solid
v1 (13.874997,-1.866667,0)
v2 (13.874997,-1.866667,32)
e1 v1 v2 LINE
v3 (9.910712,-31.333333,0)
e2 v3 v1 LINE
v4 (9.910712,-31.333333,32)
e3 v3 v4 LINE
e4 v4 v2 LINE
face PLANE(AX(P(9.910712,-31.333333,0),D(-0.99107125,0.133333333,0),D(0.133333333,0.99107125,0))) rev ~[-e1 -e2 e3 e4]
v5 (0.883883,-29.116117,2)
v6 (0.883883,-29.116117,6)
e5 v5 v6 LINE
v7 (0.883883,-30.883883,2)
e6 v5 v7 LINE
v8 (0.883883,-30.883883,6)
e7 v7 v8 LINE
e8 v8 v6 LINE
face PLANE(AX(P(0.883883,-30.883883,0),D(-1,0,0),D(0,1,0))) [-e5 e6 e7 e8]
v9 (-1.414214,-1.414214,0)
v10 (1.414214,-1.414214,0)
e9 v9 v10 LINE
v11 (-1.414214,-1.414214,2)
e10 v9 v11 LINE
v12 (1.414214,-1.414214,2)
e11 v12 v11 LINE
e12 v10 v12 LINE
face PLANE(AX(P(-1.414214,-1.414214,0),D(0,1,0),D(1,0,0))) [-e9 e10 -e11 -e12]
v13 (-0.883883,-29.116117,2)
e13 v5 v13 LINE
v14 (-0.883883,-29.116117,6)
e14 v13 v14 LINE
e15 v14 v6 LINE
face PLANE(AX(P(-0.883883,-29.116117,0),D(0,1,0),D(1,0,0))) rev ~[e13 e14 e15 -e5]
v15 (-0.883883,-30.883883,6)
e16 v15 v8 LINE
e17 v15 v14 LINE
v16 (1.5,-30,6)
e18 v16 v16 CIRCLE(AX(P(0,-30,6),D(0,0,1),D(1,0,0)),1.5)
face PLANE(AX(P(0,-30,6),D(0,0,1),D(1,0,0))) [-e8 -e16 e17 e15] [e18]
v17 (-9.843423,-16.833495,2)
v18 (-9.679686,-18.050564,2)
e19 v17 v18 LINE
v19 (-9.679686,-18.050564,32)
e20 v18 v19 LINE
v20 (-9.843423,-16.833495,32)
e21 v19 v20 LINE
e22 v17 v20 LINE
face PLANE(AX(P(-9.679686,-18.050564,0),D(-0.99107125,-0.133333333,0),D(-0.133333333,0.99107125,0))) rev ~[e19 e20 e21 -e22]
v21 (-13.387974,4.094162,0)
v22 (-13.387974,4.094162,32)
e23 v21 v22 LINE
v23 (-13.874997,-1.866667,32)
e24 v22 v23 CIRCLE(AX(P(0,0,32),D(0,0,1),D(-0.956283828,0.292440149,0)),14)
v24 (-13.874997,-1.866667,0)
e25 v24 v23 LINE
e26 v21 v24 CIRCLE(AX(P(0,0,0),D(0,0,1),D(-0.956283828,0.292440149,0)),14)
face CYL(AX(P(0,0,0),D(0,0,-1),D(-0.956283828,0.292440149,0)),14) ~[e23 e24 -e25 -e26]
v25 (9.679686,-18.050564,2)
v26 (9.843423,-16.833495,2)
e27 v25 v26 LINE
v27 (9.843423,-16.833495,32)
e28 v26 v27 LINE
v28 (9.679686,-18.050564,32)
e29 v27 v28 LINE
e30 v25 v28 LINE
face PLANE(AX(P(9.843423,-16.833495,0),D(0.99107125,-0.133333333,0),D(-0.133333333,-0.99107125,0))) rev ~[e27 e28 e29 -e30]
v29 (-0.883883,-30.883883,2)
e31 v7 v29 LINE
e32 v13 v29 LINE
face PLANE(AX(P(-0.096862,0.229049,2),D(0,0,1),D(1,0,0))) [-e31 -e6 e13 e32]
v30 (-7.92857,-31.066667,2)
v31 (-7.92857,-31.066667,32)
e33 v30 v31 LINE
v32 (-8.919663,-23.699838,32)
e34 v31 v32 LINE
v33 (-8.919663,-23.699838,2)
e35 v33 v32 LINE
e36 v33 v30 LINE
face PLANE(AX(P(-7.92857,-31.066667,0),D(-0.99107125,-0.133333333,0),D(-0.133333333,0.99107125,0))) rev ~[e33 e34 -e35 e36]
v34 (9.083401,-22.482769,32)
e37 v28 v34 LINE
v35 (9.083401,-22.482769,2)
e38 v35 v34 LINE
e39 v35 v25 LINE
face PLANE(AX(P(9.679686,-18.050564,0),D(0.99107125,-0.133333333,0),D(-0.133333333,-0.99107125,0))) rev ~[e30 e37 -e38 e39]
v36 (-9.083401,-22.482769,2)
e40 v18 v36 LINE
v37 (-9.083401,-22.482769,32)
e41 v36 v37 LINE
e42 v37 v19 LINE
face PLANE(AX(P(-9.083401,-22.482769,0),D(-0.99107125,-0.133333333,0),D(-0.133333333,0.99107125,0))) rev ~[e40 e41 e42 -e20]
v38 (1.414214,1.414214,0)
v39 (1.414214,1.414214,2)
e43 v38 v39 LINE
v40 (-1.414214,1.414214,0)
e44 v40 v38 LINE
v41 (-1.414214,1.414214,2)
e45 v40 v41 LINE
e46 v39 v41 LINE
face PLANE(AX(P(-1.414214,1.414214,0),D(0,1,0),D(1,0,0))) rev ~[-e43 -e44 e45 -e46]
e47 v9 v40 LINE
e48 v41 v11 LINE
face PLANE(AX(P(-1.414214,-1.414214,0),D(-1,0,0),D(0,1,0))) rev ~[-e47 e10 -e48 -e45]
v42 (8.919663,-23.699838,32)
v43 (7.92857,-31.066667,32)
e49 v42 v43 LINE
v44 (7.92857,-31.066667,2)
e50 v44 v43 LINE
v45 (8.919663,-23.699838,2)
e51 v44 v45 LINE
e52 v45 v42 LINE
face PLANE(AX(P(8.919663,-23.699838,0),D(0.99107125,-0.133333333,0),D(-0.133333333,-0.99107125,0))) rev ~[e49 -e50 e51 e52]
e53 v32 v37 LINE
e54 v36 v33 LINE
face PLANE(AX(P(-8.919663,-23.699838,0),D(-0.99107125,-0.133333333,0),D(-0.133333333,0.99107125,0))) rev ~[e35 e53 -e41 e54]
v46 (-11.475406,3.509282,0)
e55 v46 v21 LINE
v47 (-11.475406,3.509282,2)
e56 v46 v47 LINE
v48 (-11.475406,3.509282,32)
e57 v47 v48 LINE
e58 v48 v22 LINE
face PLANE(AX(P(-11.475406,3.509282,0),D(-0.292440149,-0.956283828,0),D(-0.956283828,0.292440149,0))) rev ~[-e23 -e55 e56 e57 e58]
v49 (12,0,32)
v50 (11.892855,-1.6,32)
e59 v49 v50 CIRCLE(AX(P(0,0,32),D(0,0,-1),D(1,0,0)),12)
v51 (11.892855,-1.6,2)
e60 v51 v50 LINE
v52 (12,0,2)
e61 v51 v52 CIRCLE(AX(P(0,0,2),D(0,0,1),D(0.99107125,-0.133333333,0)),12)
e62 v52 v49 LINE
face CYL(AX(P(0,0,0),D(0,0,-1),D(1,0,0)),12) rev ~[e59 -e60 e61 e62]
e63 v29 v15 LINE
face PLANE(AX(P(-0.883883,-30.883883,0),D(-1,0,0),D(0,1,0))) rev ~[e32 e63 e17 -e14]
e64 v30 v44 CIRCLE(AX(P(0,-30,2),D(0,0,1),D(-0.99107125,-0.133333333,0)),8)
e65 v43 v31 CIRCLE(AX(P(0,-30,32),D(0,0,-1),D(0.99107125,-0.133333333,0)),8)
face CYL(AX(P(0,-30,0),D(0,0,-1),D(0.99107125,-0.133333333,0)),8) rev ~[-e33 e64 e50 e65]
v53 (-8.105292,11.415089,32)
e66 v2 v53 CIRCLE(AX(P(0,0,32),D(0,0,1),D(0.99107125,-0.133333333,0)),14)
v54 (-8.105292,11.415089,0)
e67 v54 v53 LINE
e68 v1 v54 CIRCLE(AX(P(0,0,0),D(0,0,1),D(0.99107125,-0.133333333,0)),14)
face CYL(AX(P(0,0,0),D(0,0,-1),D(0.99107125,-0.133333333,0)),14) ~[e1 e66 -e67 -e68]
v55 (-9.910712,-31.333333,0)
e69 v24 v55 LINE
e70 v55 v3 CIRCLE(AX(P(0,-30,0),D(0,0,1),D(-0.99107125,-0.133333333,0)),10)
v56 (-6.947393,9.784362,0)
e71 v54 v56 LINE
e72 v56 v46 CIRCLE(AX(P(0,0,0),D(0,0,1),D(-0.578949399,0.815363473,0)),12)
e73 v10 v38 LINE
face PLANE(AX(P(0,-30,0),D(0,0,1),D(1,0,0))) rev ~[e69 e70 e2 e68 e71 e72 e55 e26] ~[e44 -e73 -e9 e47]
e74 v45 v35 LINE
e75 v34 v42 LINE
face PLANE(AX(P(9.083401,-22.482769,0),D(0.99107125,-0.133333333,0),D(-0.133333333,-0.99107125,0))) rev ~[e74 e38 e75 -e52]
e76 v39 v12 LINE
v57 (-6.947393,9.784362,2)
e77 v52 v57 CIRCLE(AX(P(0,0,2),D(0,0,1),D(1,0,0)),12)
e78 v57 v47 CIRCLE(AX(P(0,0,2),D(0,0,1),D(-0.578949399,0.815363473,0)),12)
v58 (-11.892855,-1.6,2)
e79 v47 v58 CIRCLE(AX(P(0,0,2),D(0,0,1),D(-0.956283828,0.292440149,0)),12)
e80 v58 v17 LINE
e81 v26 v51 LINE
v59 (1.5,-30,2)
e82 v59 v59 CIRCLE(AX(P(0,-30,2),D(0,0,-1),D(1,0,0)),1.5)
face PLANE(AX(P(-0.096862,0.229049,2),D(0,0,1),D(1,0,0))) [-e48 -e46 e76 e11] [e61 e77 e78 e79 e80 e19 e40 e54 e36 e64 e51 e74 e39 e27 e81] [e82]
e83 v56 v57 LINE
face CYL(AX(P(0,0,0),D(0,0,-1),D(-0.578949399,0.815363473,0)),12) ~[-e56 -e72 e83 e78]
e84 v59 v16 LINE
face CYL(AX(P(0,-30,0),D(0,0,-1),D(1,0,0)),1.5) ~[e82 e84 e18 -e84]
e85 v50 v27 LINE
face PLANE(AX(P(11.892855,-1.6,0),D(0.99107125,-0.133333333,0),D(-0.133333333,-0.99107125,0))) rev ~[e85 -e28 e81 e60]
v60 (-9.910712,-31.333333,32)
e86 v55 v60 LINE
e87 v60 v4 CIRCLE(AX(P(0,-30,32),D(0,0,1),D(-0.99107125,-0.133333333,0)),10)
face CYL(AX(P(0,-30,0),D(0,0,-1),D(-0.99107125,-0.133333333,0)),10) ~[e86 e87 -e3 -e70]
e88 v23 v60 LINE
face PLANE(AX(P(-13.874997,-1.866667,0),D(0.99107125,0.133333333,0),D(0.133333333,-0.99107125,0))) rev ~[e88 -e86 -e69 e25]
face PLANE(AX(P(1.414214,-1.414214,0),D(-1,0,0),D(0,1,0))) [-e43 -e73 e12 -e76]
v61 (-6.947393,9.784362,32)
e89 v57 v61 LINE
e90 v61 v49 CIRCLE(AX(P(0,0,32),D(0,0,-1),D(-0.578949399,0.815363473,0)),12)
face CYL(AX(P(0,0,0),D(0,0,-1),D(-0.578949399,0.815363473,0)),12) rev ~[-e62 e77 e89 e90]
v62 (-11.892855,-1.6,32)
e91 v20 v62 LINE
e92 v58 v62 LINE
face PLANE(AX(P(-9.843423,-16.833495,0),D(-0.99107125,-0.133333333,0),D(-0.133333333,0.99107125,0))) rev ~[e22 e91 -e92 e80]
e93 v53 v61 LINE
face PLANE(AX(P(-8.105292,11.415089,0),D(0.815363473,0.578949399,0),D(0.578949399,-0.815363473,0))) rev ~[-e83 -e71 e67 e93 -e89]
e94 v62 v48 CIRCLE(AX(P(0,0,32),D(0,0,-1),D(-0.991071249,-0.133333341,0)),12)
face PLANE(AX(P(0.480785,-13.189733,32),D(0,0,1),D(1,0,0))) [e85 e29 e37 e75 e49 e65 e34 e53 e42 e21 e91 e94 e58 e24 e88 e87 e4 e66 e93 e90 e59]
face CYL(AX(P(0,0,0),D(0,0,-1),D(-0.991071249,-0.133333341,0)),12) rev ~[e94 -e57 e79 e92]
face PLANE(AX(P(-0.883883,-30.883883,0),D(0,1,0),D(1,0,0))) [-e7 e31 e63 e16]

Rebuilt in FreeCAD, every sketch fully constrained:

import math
import FreeCAD as App
import Part
import Sketcher
from FreeCAD import Vector

doc = App.newDocument("Part")
body = doc.addObject("PartDesign::Body", "Body")

sketch1 = body.newObject("Sketcher::SketchObject", "Sketch")
sketch1.AttachmentSupport = (doc.getObject("XY_Plane"), [""])
sketch1.MapMode = "FlatFace"
sketch1.addGeometry(Part.LineSegment(Vector(9.9, -31.3, 0), Vector(13.9, -1.9, 0)), False)
sketch1.addGeometry(Part.ArcOfCircle(Part.Circle(Vector(0, 0, 0), Vector(0, 0, 1), 14), math.radians(-8), math.radians(125)), False)
sketch1.addGeometry(Part.LineSegment(Vector(-8.1, 11.4, 0), Vector(-6.9, 9.8, 0)), False)
sketch1.addGeometry(Part.ArcOfCircle(Part.Circle(Vector(0, 0, 0), Vector(0, 0, 1), 12), math.radians(0), math.radians(125)), False)
sketch1.addGeometry(Part.ArcOfCircle(Part.Circle(Vector(0, 0, 0), Vector(0, 0, 1), 12), math.radians(-7.66), math.radians(0)), False)
sketch1.addGeometry(Part.LineSegment(Vector(11.9, -1.6, 0), Vector(9.8, -16.8, 0)), False)
sketch1.addGeometry(Part.LineSegment(Vector(9.8, -16.8, 0), Vector(9.7, -18.1, 0)), False)
sketch1.addGeometry(Part.LineSegment(Vector(9.7, -18.1, 0), Vector(9.1, -22.5, 0)), False)
sketch1.addGeometry(Part.LineSegment(Vector(9.1, -22.5, 0), Vector(8.9, -23.7, 0)), False)
sketch1.addGeometry(Part.LineSegment(Vector(8.9, -23.7, 0), Vector(7.9, -31.1, 0)), False)
sketch1.addGeometry(Part.ArcOfCircle(Part.Circle(Vector(0, -30, 0), Vector(0, 0, 1), 8), math.radians(-172), math.radians(-8)), False)
sketch1.addGeometry(Part.LineSegment(Vector(-7.9, -31.1, 0), Vector(-8.9, -23.7, 0)), False)
sketch1.addGeometry(Part.LineSegment(Vector(-8.9, -23.7, 0), Vector(-9.1, -22.5, 0)), False)
sketch1.addGeometry(Part.LineSegment(Vector(-9.1, -22.5, 0), Vector(-9.7, -18.1, 0)), False)
sketch1.addGeometry(Part.LineSegment(Vector(-9.7, -18.1, 0), Vector(-9.8, -16.8, 0)), False)
sketch1.addGeometry(Part.LineSegment(Vector(-9.8, -16.8, 0), Vector(-11.9, -1.6, 0)), False)
sketch1.addGeometry(Part.ArcOfCircle(Part.Circle(Vector(0, 0, 0), Vector(0, 0, 1), 12), math.radians(163), math.radians(188)), False)
sketch1.addGeometry(Part.LineSegment(Vector(-11.5, 3.5, 0), Vector(-13.4, 4.1, 0)), False)
sketch1.addGeometry(Part.ArcOfCircle(Part.Circle(Vector(0, 0, 0), Vector(0, 0, 1), 14), math.radians(163), math.radians(188)), False)
sketch1.addGeometry(Part.LineSegment(Vector(-13.9, -1.9, 0), Vector(-9.9, -31.3, 0)), False)
sketch1.addGeometry(Part.ArcOfCircle(Part.Circle(Vector(0, -30, 0), Vector(0, 0, 1), 10), math.radians(-172), math.radians(-8)), False)
sketch1.addConstraint(Sketcher.Constraint("Tangent", 0, 2, 1, 1))
sketch1.addConstraint(Sketcher.Constraint("Coincident", 1, 2, 2, 1))
sketch1.addConstraint(Sketcher.Constraint("Coincident", 2, 2, 3, 2))
sketch1.addConstraint(Sketcher.Constraint("Tangent", 3, 1, 4, 2))
sketch1.addConstraint(Sketcher.Constraint("Tangent", 4, 1, 5, 1))
sketch1.addConstraint(Sketcher.Constraint("Coincident", 5, 2, 6, 1))
sketch1.addConstraint(Sketcher.Constraint("Coincident", 6, 2, 7, 1))
sketch1.addConstraint(Sketcher.Constraint("Coincident", 7, 2, 8, 1))
sketch1.addConstraint(Sketcher.Constraint("Coincident", 8, 2, 9, 1))
sketch1.addConstraint(Sketcher.Constraint("Tangent", 9, 2, 10, 2))
sketch1.addConstraint(Sketcher.Constraint("Tangent", 10, 1, 11, 1))
sketch1.addConstraint(Sketcher.Constraint("Coincident", 11, 2, 12, 1))
sketch1.addConstraint(Sketcher.Constraint("Coincident", 12, 2, 13, 1))
sketch1.addConstraint(Sketcher.Constraint("Coincident", 13, 2, 14, 1))
sketch1.addConstraint(Sketcher.Constraint("Coincident", 14, 2, 15, 1))
sketch1.addConstraint(Sketcher.Constraint("Tangent", 15, 2, 16, 2))
sketch1.addConstraint(Sketcher.Constraint("Coincident", 16, 1, 17, 1))
sketch1.addConstraint(Sketcher.Constraint("Coincident", 17, 2, 18, 1))
sketch1.addConstraint(Sketcher.Constraint("Tangent", 18, 2, 19, 1))
sketch1.addConstraint(Sketcher.Constraint("Tangent", 19, 2, 20, 1))
sketch1.addConstraint(Sketcher.Constraint("Tangent", 20, 2, 0, 1))
sketch1.addConstraint(Sketcher.Constraint("Coincident", 1, 3, -1, 1))
sketch1.addConstraint(Sketcher.Constraint("Coincident", 3, 3, -1, 1))
sketch1.addConstraint(Sketcher.Constraint("Coincident", 16, 3, -1, 1))
sketch1.addConstraint(Sketcher.Constraint("Coincident", 18, 3, -1, 1))
sketch1.addConstraint(Sketcher.Constraint("Coincident", 20, 3, 10, 3))
sketch1.addConstraint(Sketcher.Constraint("Equal", 3, 4))
sketch1.addConstraint(Sketcher.Constraint("Equal", 4, 16))
sketch1.addConstraint(Sketcher.Constraint("Equal", 1, 18))
sketch1.addConstraint(Sketcher.Constraint("Symmetric", 9, 2, 10, 1, -2))
sketch1.addConstraint(Sketcher.Constraint("Symmetric", 7, 2, 12, 2, -2))
sketch1.addConstraint(Sketcher.Constraint("Symmetric", 6, 2, 13, 2, -2))
sketch1.addConstraint(Sketcher.Constraint("Symmetric", 5, 2, 14, 2, -2))
sketch1.addConstraint(Sketcher.Constraint("PointOnObject", 3, 1, -1))
sketch1.addConstraint(Sketcher.Constraint("Parallel", 0, 5))
sketch1.addConstraint(Sketcher.Constraint("Parallel", 5, 6))
sketch1.addConstraint(Sketcher.Constraint("Parallel", 6, 7))
sketch1.addConstraint(Sketcher.Constraint("Parallel", 7, 8))
sketch1.addConstraint(Sketcher.Constraint("Parallel", 8, 9))
sketch1.addConstraint(Sketcher.Constraint("Horizontal", 8, 2, 11, 2))
sketch1.addConstraint(Sketcher.Constraint("Equal", 6, 8))
sketch1.addConstraint(Sketcher.Constraint("Radius", 1, 14.0))
sketch1.addConstraint(Sketcher.Constraint("Radius", 3, 12.0))
sketch1.addConstraint(Sketcher.Constraint("Radius", 10, 8.0))
sketch1.addConstraint(Sketcher.Constraint("DistanceY", 10, 3, -1, 1, 30.0))
sketch1.addConstraint(Sketcher.Constraint("DistanceX", -1, 1, 7, 2, 9.083401))
sketch1.addConstraint(Sketcher.Constraint("DistanceX", 1, 2, 2, 2, 1.157899))
sketch1.addConstraint(Sketcher.Constraint("DistanceY", 17, 2, 2, 2, 5.6902))
sketch1.addConstraint(Sketcher.Constraint("DistanceX", 1, 2, -1, 1, 8.105292))
sketch1.addConstraint(Sketcher.Constraint("DistanceY", 8, 2, -1, 1, 23.699838))
sketch1.addConstraint(Sketcher.Constraint("DistanceY", -1, 1, 16, 1, 3.509282))
sketch1.addConstraint(Sketcher.Constraint("DistanceX", 5, 2, 4, 1, 2.049432))
pad1 = body.newObject("PartDesign::Pad", "Pad")
pad1.Profile = sketch1
pad1.Length = 32

sketch2 = body.newObject("Sketcher::SketchObject", "Sketch001")
sketch2.AttachmentSupport = (doc.getObject("XY_Plane"), [""])
sketch2.MapMode = "FlatFace"
sketch2.addGeometry(Part.ArcOfCircle(Part.Circle(Vector(0, 0, 0), Vector(0, 0, 1), 12), math.radians(0), math.radians(125)), False)
sketch2.addGeometry(Part.ArcOfCircle(Part.Circle(Vector(0, 0, 0), Vector(0, 0, 1), 12), math.radians(125), math.radians(163)), False)
sketch2.addGeometry(Part.ArcOfCircle(Part.Circle(Vector(0, 0, 0), Vector(0, 0, 1), 12), math.radians(163), math.radians(188)), False)
sketch2.addGeometry(Part.LineSegment(Vector(-11.9, -1.6, 0), Vector(-9.8, -16.8, 0)), False)
sketch2.addGeometry(Part.LineSegment(Vector(-9.8, -16.8, 0), Vector(-9.7, -18.1, 0)), False)
sketch2.addGeometry(Part.LineSegment(Vector(-9.7, -18.1, 0), Vector(-9.1, -22.5, 0)), False)
sketch2.addGeometry(Part.LineSegment(Vector(-9.1, -22.5, 0), Vector(-8.9, -23.7, 0)), False)
sketch2.addGeometry(Part.LineSegment(Vector(-8.9, -23.7, 0), Vector(-7.9, -31.1, 0)), False)
sketch2.addGeometry(Part.ArcOfCircle(Part.Circle(Vector(0, -30, 0), Vector(0, 0, 1), 8), math.radians(-172), math.radians(-8)), False)
sketch2.addGeometry(Part.LineSegment(Vector(7.9, -31.1, 0), Vector(8.9, -23.7, 0)), False)
sketch2.addGeometry(Part.LineSegment(Vector(8.9, -23.7, 0), Vector(9.1, -22.5, 0)), False)
sketch2.addGeometry(Part.LineSegment(Vector(9.1, -22.5, 0), Vector(9.7, -18.1, 0)), False)
sketch2.addGeometry(Part.LineSegment(Vector(9.7, -18.1, 0), Vector(9.8, -16.8, 0)), False)
sketch2.addGeometry(Part.LineSegment(Vector(9.8, -16.8, 0), Vector(11.9, -1.6, 0)), False)
sketch2.addGeometry(Part.ArcOfCircle(Part.Circle(Vector(0, 0, 0), Vector(0, 0, 1), 12), math.radians(-7.66), math.radians(0)), False)
sketch2.addConstraint(Sketcher.Constraint("Tangent", 0, 2, 1, 1))
sketch2.addConstraint(Sketcher.Constraint("Tangent", 1, 2, 2, 1))
sketch2.addConstraint(Sketcher.Constraint("Tangent", 2, 2, 3, 1))
sketch2.addConstraint(Sketcher.Constraint("Coincident", 3, 2, 4, 1))
sketch2.addConstraint(Sketcher.Constraint("Coincident", 4, 2, 5, 1))
sketch2.addConstraint(Sketcher.Constraint("Coincident", 5, 2, 6, 1))
sketch2.addConstraint(Sketcher.Constraint("Coincident", 6, 2, 7, 1))
sketch2.addConstraint(Sketcher.Constraint("Tangent", 7, 2, 8, 1))
sketch2.addConstraint(Sketcher.Constraint("Tangent", 8, 2, 9, 1))
sketch2.addConstraint(Sketcher.Constraint("Coincident", 9, 2, 10, 1))
sketch2.addConstraint(Sketcher.Constraint("Coincident", 10, 2, 11, 1))
sketch2.addConstraint(Sketcher.Constraint("Coincident", 11, 2, 12, 1))
sketch2.addConstraint(Sketcher.Constraint("Coincident", 12, 2, 13, 1))
sketch2.addConstraint(Sketcher.Constraint("Tangent", 13, 2, 14, 1))
sketch2.addConstraint(Sketcher.Constraint("Tangent", 14, 2, 0, 1))
sketch2.addConstraint(Sketcher.Constraint("Coincident", 0, 3, -1, 1))
sketch2.addConstraint(Sketcher.Constraint("Coincident", 2, 3, -1, 1))
sketch2.addConstraint(Sketcher.Constraint("Equal", 2, 14))
sketch2.addConstraint(Sketcher.Constraint("Symmetric", 7, 2, 8, 2, -2))
sketch2.addConstraint(Sketcher.Constraint("Symmetric", 5, 2, 10, 2, -2))
sketch2.addConstraint(Sketcher.Constraint("Symmetric", 4, 2, 11, 2, -2))
sketch2.addConstraint(Sketcher.Constraint("Symmetric", 3, 2, 12, 2, -2))
sketch2.addConstraint(Sketcher.Constraint("PointOnObject", 14, 2, -1))
sketch2.addConstraint(Sketcher.Constraint("Parallel", 3, 4))
sketch2.addConstraint(Sketcher.Constraint("Parallel", 4, 5))
sketch2.addConstraint(Sketcher.Constraint("Parallel", 5, 6))
sketch2.addConstraint(Sketcher.Constraint("Parallel", 6, 7))
sketch2.addConstraint(Sketcher.Constraint("Horizontal", 6, 2, 9, 2))
sketch2.addConstraint(Sketcher.Constraint("Equal", 4, 6))
sketch2.addConstraint(Sketcher.Constraint("Radius", 0, 12.0))
sketch2.addConstraint(Sketcher.Constraint("Radius", 8, 8.0))
sketch2.addConstraint(Sketcher.Constraint("DistanceY", 8, 3, -1, 1, 30.0))
sketch2.addConstraint(Sketcher.Constraint("DistanceX", 5, 2, -1, 1, 9.083401))
sketch2.addConstraint(Sketcher.Constraint("DistanceY", -1, 1, 0, 2, 9.784362))
sketch2.addConstraint(Sketcher.Constraint("DistanceY", -1, 1, 1, 2, 3.509282))
sketch2.addConstraint(Sketcher.Constraint("DistanceY", 6, 2, -1, 1, 23.699838))
sketch2.addConstraint(Sketcher.Constraint("DistanceX", 2, 2, 3, 2, 2.049432))
pad2 = body.newObject("PartDesign::Pad", "Pad001")
pad2.Profile = sketch2
pad2.Length = 2

sketch3 = body.newObject("Sketcher::SketchObject", "Sketch002")
sketch3.AttachmentSupport = (doc.getObject("XY_Plane"), [""])
sketch3.MapMode = "FlatFace"
sketch3.addGeometry(Part.LineSegment(Vector(-1.4, 1.4, 0), Vector(-1.4, -1.4, 0)), False)
sketch3.addGeometry(Part.LineSegment(Vector(-1.4, -1.4, 0), Vector(1.4, -1.4, 0)), False)
sketch3.addGeometry(Part.LineSegment(Vector(1.4, -1.4, 0), Vector(1.4, 1.4, 0)), False)
sketch3.addGeometry(Part.LineSegment(Vector(1.4, 1.4, 0), Vector(-1.4, 1.4, 0)), False)
sketch3.addConstraint(Sketcher.Constraint("Coincident", 0, 2, 1, 1))
sketch3.addConstraint(Sketcher.Constraint("Coincident", 1, 2, 2, 1))
sketch3.addConstraint(Sketcher.Constraint("Coincident", 2, 2, 3, 1))
sketch3.addConstraint(Sketcher.Constraint("Coincident", 3, 2, 0, 1))
sketch3.addConstraint(Sketcher.Constraint("Vertical", 0))
sketch3.addConstraint(Sketcher.Constraint("Horizontal", 1))
sketch3.addConstraint(Sketcher.Constraint("Vertical", 2))
sketch3.addConstraint(Sketcher.Constraint("Horizontal", 3))
sketch3.addConstraint(Sketcher.Constraint("Symmetric", 0, 2, 2, 2, -1, 1))
sketch3.addConstraint(Sketcher.Constraint("Equal", 3, 0))
sketch3.addConstraint(Sketcher.Constraint("DistanceX", 1, 1, 1, 2, 2.828427))
pocket1 = body.newObject("PartDesign::Pocket", "Pocket")
pocket1.Profile = sketch3
pocket1.Length = 3
pocket1.Reversed = True

sketch4 = body.newObject("Sketcher::SketchObject", "Sketch003")
sketch4.AttachmentSupport = (doc.getObject("XY_Plane"), [""])
sketch4.MapMode = "FlatFace"
sketch4.addGeometry(Part.Circle(Vector(0, -30, 0), Vector(0, 0, 1), 1.5), False)
sketch4.addGeometry(Part.LineSegment(Vector(0.9, -30.9, 0), Vector(-0.9, -30.9, 0)), False)
sketch4.addGeometry(Part.LineSegment(Vector(-0.9, -30.9, 0), Vector(-0.9, -29.1, 0)), False)
sketch4.addGeometry(Part.LineSegment(Vector(-0.9, -29.1, 0), Vector(0.9, -29.1, 0)), False)
sketch4.addGeometry(Part.LineSegment(Vector(0.9, -29.1, 0), Vector(0.9, -30.9, 0)), False)
sketch4.addConstraint(Sketcher.Constraint("Coincident", 1, 2, 2, 1))
sketch4.addConstraint(Sketcher.Constraint("Coincident", 2, 2, 3, 1))
sketch4.addConstraint(Sketcher.Constraint("Coincident", 3, 2, 4, 1))
sketch4.addConstraint(Sketcher.Constraint("Coincident", 4, 2, 1, 1))
sketch4.addConstraint(Sketcher.Constraint("Horizontal", 1))
sketch4.addConstraint(Sketcher.Constraint("Vertical", 2))
sketch4.addConstraint(Sketcher.Constraint("Horizontal", 3))
sketch4.addConstraint(Sketcher.Constraint("Vertical", 4))
sketch4.addConstraint(Sketcher.Constraint("PointOnObject", 0, 3, -2))
sketch4.addConstraint(Sketcher.Constraint("Equal", 3, 2))
sketch4.addConstraint(Sketcher.Constraint("Diameter", 0, 3.0))
sketch4.addConstraint(Sketcher.Constraint("DistanceY", 0, 3, -1, 1, 30.0))
sketch4.addConstraint(Sketcher.Constraint("DistanceX", 1, 2, 1, 1, 1.767767))
sketch4.addConstraint(Sketcher.Constraint("DistanceX", 1, 2, -1, 1, 0.883883))
sketch4.addConstraint(Sketcher.Constraint("DistanceY", 1, 2, -1, 1, 30.883883))
pad3 = body.newObject("PartDesign::Pad", "Pad002")
pad3.Profile = sketch4
pad3.Length = 6

doc.recompute()
